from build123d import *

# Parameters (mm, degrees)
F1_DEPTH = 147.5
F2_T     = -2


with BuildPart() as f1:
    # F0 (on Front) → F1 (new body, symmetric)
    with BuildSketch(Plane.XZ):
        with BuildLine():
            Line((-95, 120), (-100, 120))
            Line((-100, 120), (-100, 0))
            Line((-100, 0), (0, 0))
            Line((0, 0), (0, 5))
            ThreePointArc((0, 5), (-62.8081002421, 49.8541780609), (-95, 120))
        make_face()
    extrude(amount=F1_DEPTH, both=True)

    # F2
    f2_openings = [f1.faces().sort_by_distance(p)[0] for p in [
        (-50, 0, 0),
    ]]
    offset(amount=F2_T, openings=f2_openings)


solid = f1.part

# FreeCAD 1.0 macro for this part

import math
import FreeCAD as App
import Part
import Sketcher

V = App.Vector
Q = App.Units.Quantity


def faces_at(feature, points):
    """Names of the faces that lie closest to the given points."""
    faces = feature.Shape.Faces
    near = lambda p: min(range(len(faces)), key=lambda i: faces[i].distToShape(Part.Vertex(*p))[0])
    return sorted({f"Face{near(p) + 1}" for p in points})

doc = App.newDocument("Part")
params = doc.addObject("Spreadsheet::Sheet", "Params")
for row, (alias, value) in enumerate([
    ("sketch1_radius", "150 mm"),
    ("sketch1_width", "5 mm"),
    ("sketch1_width2", "100 mm"),
    ("sketch1_height", "120 mm"),
    ("pad1_length", "295 mm"),
    ("thickness_wall", "2 mm"),
], start=1):
    params.set(f"A{row}", alias)
    params.set(f"B{row}", "=" + value)
    params.setAlias(f"B{row}", alias)

body = doc.addObject("PartDesign::Body", "Body")

# Sketch on XZ plane
sketch1 = body.newObject("Sketcher::SketchObject", "Sketch")
sketch1.AttachmentSupport = (doc.getObject("XZ_Plane"), [""])
sketch1.MapMode = "FlatFace"
sketch1.addGeometry([
    Part.LineSegment(V(-95, 120, 0), V(-100, 120, 0)),  # 0
    Part.LineSegment(V(-100, 120, 0), V(-100, 0, 0)),  # 1
    Part.LineSegment(V(-100, 0, 0), V(0, 0, 0)),  # 2
    Part.LineSegment(V(0, 0, 0), V(0, 5, 0)),  # 3
    Part.ArcOfCircle(Part.Circle(V(53, 145, 0), V(0, 0, 1), 150), math.radians(-170), math.radians(-111)),  # 4
], False)
sketch1.addConstraint([
    Sketcher.Constraint("Coincident", 0, 2, 1, 1),
    Sketcher.Constraint("Coincident", 1, 2, 2, 1),
    Sketcher.Constraint("Coincident", 2, 2, 3, 1),
    Sketcher.Constraint("Coincident", 3, 2, 4, 2),
    Sketcher.Constraint("Coincident", 4, 1, 0, 1),
    Sketcher.Constraint("Horizontal", 0),
    Sketcher.Constraint("Vertical", 1),
    Sketcher.Constraint("Horizontal", 2),
    Sketcher.Constraint("Vertical", 3),
    Sketcher.Constraint("Coincident", 2, 2, -1, 1),
    Sketcher.Constraint("Equal", 0, 3),
    Sketcher.Constraint("Radius", 4, Q("150 mm")),
    Sketcher.Constraint("DistanceX", 0, 2, 0, 1, Q("5 mm")),
    Sketcher.Constraint("DistanceX", 2, 1, 2, 2, Q("100 mm")),
    Sketcher.Constraint("DistanceY", 1, 2, 1, 1, Q("120 mm")),
])
sketch1.setExpression("Constraints[11]", "Params.sketch1_radius")
sketch1.setExpression("Constraints[12]", "Params.sketch1_width")
sketch1.setExpression("Constraints[13]", "Params.sketch1_width2")
sketch1.setExpression("Constraints[14]", "Params.sketch1_height")
pad1 = body.newObject("PartDesign::Pad", "Pad")
pad1.Profile = sketch1
pad1.setExpression("Length", "Params.pad1_length")
pad1.Midplane = True
doc.recompute()

thickness = body.newObject("PartDesign::Thickness", "Thickness")
thickness.Base = (pad1, faces_at(pad1, [(-50, 0, 0)]))
thickness.setExpression("Value", "Params.thickness_wall")
thickness.Reversed = True
thickness.Join = "Arc"

doc.recompute()
